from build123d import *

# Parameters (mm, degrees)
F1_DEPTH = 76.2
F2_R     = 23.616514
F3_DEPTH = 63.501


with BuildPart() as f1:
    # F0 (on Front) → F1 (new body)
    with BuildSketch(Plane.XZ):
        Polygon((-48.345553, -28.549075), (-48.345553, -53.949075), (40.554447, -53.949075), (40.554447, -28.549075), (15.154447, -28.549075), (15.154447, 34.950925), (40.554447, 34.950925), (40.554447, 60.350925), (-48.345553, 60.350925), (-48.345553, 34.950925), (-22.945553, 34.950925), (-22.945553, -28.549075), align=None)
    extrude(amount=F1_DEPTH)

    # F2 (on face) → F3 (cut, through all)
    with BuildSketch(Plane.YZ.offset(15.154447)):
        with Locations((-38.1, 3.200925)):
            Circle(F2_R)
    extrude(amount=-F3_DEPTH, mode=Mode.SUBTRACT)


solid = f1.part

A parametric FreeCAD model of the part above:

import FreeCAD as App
import Part
import Sketcher
from FreeCAD import Vector
Q = App.Units.Quantity


def add_polygon(sketch, points):
    """Adds a closed chain of lines whose ends are joined by coincident constraints."""
    first, n = sketch.GeometryCount, len(points)
    for a, b in zip(points, points[1:] + points[:1]):
        sketch.addGeometry(Part.LineSegment(App.Vector(*a, 0), App.Vector(*b, 0)), False)
    for i in range(n):
        sketch.addConstraint(Sketcher.Constraint("Coincident", first + i, 2, first + (i + 1) % n, 1))

doc = App.newDocument("Part")
body = doc.addObject("PartDesign::Body", "Body")

# Sketch on XZ plane
sketch1 = doc.addObject("Sketcher::SketchObject", "Sketch")
body.addObject(sketch1)
sketch1.AttachmentSupport = (doc.XZ_Plane, [""])
sketch1.MapMode = "FlatFace"
add_polygon(sketch1, [(-48, -29), (-48, -54), (41, -54), (41, -29), (15, -29), (15, 35), (41, 35), (41, 60), (-48, 60), (-48, 35), (-23, 35), (-23, -29)])  # lines 0-11
sketch1.addConstraint([
    Sketcher.Constraint("Vertical", 0),
    Sketcher.Constraint("Horizontal", 1),
    Sketcher.Constraint("Vertical", 2),
    Sketcher.Constraint("Horizontal", 3),
    Sketcher.Constraint("Vertical", 4),
    Sketcher.Constraint("Horizontal", 5),
    Sketcher.Constraint("Vertical", 6),
    Sketcher.Constraint("Horizontal", 7),
    Sketcher.Constraint("Vertical", 8),
    Sketcher.Constraint("Horizontal", 9),
    Sketcher.Constraint("Vertical", 10),
    Sketcher.Constraint("Horizontal", 11),
    Sketcher.Constraint("Horizontal", 5, 2, 8, 2),
    Sketcher.Constraint("Horizontal", 3, 2, 10, 2),
    Sketcher.Constraint("Vertical", 2, 2, 5, 2),
    Sketcher.Constraint("Vertical", 0, 2, 7, 2),
    Sketcher.Constraint("Equal", 5, 9),
    Sketcher.Constraint("Equal", 11, 0),
    Sketcher.Constraint("Equal", 2, 6),
    Sketcher.Constraint("DistanceX", 3, 2, 3, 1, Q("1 in")),
    Sketcher.Constraint("DistanceX", 1, 1, 1, 2, Q("3.5 in")),
    Sketcher.Constraint("DistanceY", 4, 1, 4, 2, Q("2.5 in")),
    Sketcher.Constraint("DistanceX", 0, 2, -1, 1, Q("48.345553 mm")),
    Sketcher.Constraint("DistanceY", 0, 2, -1, 1, Q("53.949075 mm")),
])
pad1 = doc.addObject("PartDesign::Pad", "Pad")
body.addObject(pad1)
pad1.Profile = sketch1
pad1.Length = Q("3 in")

# Sketch on YZ plane
sketch2 = doc.addObject("Sketcher::SketchObject", "Sketch001")
body.addObject(sketch2)
sketch2.AttachmentSupport = (doc.YZ_Plane, [""])
sketch2.MapMode = "FlatFace"
sketch2.AttachmentOffset = App.Placement(Vector(0, 0, 15.154447), App.Rotation())
sketch2.addGeometry(Part.Circle(Vector(-38, 3, 0), Vector(0, 0, 1), 24), False)
sketch2.addConstraint([
    Sketcher.Constraint("DistanceX", 0, 3, -1, 1, Q("1.5 in")),
    Sketcher.Constraint("Diameter", 0, Q("47.233028 mm")),
    Sketcher.Constraint("DistanceY", -1, 1, 0, 3, Q("3.200925 mm")),
])
pocket1 = doc.addObject("PartDesign::Pocket", "Pocket")
body.addObject(pocket1)
pocket1.Profile = sketch2
pocket1.Type = "ThroughAll"

doc.recompute()
